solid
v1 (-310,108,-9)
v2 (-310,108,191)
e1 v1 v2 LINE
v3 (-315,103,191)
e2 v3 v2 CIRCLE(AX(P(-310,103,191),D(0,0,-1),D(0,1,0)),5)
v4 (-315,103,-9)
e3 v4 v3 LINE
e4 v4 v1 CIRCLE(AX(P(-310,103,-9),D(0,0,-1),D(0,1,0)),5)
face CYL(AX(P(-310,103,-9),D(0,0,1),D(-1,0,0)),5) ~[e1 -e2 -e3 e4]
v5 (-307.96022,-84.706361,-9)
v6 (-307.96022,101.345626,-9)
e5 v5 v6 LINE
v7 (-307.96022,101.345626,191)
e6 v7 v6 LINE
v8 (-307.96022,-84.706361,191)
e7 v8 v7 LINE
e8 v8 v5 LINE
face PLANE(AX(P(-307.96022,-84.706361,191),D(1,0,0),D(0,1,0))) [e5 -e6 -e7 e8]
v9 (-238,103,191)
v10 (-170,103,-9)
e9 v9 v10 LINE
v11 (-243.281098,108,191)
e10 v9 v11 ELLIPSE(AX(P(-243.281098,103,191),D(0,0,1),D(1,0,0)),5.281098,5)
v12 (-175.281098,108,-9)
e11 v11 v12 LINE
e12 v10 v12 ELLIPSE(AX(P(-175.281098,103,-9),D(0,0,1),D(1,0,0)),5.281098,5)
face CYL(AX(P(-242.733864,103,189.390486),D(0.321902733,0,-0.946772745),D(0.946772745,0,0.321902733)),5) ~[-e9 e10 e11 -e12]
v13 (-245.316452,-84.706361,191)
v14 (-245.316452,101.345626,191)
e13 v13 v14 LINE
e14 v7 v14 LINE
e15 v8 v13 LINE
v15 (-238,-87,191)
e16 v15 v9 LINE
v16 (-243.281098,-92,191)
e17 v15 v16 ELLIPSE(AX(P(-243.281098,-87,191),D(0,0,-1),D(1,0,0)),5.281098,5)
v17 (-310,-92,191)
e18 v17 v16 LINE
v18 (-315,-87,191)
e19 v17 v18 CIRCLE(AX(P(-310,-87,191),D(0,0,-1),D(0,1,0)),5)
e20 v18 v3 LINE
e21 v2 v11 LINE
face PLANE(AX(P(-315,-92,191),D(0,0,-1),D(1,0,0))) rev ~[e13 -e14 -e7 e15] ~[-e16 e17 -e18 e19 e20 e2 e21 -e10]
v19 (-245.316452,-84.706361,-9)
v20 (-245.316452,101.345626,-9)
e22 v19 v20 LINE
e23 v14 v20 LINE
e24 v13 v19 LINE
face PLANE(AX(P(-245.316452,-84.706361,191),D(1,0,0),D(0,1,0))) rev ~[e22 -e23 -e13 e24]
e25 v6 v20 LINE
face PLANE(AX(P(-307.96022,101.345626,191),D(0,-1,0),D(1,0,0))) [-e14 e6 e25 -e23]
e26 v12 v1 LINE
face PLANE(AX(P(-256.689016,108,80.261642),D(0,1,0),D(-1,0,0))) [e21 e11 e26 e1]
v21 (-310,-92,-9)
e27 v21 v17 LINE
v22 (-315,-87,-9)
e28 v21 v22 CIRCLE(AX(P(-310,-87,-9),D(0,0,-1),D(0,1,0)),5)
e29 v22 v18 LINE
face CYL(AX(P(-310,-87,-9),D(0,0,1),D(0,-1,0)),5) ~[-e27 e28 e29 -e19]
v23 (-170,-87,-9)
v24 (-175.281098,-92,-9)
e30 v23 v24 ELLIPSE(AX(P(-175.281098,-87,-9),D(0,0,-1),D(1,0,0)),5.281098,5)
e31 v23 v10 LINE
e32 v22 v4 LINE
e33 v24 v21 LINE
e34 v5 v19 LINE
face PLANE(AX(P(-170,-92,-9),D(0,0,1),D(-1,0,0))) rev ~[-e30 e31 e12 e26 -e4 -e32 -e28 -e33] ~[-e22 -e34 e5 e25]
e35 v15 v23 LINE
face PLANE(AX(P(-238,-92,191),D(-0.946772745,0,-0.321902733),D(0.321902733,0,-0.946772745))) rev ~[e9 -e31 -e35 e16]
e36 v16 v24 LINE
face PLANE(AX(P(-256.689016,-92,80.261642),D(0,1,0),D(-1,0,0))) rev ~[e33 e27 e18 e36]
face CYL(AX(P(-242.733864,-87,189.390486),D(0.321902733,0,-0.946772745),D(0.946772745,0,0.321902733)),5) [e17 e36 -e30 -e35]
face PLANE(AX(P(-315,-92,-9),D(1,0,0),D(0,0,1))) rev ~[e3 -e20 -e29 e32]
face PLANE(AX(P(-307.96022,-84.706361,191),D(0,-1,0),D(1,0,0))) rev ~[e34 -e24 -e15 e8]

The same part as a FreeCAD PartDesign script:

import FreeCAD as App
import Part
import Sketcher
from FreeCAD import Vector
Q = App.Units.Quantity


def edges_at(feature, points):
    """Names of the edges that pass closest to the given points."""
    edges = feature.Shape.Edges
    near = lambda p: min(range(len(edges)), key=lambda i: edges[i].distToShape(Part.Vertex(*p))[0])
    return sorted({f"Edge{near(p) + 1}" for p in points})


def add_polygon(sketch, points):
    """Adds a closed chain of lines whose ends are joined by coincident constraints."""
    first, n = sketch.GeometryCount, len(points)
    for a, b in zip(points, points[1:] + points[:1]):
        sketch.addGeometry(Part.LineSegment(App.Vector(*a, 0), App.Vector(*b, 0)), False)
    for i in range(n):
        sketch.addConstraint(Sketcher.Constraint("Coincident", first + i, 2, first + (i + 1) % n, 1))

doc = App.newDocument("Part")
body = doc.addObject("PartDesign::Body", "Body")

# Sketch on XY plane
sketch1 = body.newObject("Sketcher::SketchObject", "Sketch")
sketch1.AttachmentSupport = (doc.getObject("XY_Plane"), [""])
sketch1.MapMode = "FlatFace"
add_polygon(sketch1, [(0, 0), (145, 0), (145, 200), (68, 200)])  # lines 0-3
sketch1.addConstraint([
    Sketcher.Constraint("Horizontal", 0),
    Sketcher.Constraint("Vertical", 1),
    Sketcher.Constraint("Horizontal", 2),
    Sketcher.Constraint("Coincident", 3, 2, -1, 1),
    Sketcher.Constraint("DistanceX", 0, 1, 0, 2, Q("145 mm")),
    Sketcher.Constraint("DistanceX", 2, 2, 2, 1, Q("77 mm")),
    Sketcher.Constraint("DistanceY", 1, 1, 1, 2, Q("200 mm")),
])
pad1 = body.newObject("PartDesign::Pad", "Pad")
pad1.Profile = sketch1
pad1.Length = 200
doc.recompute()

fillet = body.newObject("PartDesign::Fillet", "Fillet")
fillet.Base = (pad1, edges_at(pad1, [(34, 100, 0), (34, 100, 200)]))
fillet.Radius = 5
doc.recompute()

fillet2 = body.newObject("PartDesign::Fillet", "Fillet001")
fillet2.Base = (fillet, edges_at(fillet, [(145, 100, 0)]))
fillet2.Radius = 5
doc.recompute()

fillet3 = body.newObject("PartDesign::Fillet", "Fillet002")
fillet3.Base = (fillet2, edges_at(fillet2, [(145, 100, 200)]))
fillet3.Radius = 5

# Sketch on XZ plane
sketch2 = body.newObject("Sketcher::SketchObject", "Sketch001")
sketch2.AttachmentSupport = (doc.getObject("XZ_Plane"), [""])
sketch2.MapMode = "FlatFace"
sketch2.AttachmentOffset = App.Placement(Vector(0, 0, -200), App.Rotation())
add_polygon(sketch2, [(137.96022, 193.345627), (137.96022, 7.29364), (75.316452, 7.29364), (75.316452, 193.345627)])  # lines 0-3
sketch2.addConstraint([
    Sketcher.Constraint("Vertical", 0),
    Sketcher.Constraint("Horizontal", 1),
    Sketcher.Constraint("Vertical", 2),
    Sketcher.Constraint("Horizontal", 3),
    Sketcher.Constraint("DistanceX", 1, 2, 1, 1, Q("62.643768 mm")),
    Sketcher.Constraint("DistanceY", 0, 2, 0, 1, Q("186.051987 mm")),
    Sketcher.Constraint("DistanceX", -1, 1, 0, 2, Q("137.96022 mm")),
    Sketcher.Constraint("DistanceY", -1, 1, 0, 2, Q("7.29364 mm")),
])
pocket1 = body.newObject("PartDesign::Pocket", "Pocket")
pocket1.Profile = sketch2
pocket1.Length = 200
pocket1.Reversed = True
body2 = doc.addObject("PartDesign::Body", "Body001")
doc.recompute()

body.Placement = App.Placement(Vector(0, 0, 0), App.Rotation(Vector(1, 0, 0), 90))
boolean = body2.newObject("PartDesign::Boolean", "Boolean")
boolean.Type = "Fuse"
boolean.addObjects([body])
body3 = doc.addObject("PartDesign::Body", "Body002")
doc.recompute()

body2.Placement = App.Placement(Vector(-170, -92, -9), App.Rotation(Vector(0, 0, 1), 180))
boolean2 = body3.newObject("PartDesign::Boolean", "Boolean001")
boolean2.Type = "Fuse"
boolean2.addObjects([body2])

doc.recompute()
